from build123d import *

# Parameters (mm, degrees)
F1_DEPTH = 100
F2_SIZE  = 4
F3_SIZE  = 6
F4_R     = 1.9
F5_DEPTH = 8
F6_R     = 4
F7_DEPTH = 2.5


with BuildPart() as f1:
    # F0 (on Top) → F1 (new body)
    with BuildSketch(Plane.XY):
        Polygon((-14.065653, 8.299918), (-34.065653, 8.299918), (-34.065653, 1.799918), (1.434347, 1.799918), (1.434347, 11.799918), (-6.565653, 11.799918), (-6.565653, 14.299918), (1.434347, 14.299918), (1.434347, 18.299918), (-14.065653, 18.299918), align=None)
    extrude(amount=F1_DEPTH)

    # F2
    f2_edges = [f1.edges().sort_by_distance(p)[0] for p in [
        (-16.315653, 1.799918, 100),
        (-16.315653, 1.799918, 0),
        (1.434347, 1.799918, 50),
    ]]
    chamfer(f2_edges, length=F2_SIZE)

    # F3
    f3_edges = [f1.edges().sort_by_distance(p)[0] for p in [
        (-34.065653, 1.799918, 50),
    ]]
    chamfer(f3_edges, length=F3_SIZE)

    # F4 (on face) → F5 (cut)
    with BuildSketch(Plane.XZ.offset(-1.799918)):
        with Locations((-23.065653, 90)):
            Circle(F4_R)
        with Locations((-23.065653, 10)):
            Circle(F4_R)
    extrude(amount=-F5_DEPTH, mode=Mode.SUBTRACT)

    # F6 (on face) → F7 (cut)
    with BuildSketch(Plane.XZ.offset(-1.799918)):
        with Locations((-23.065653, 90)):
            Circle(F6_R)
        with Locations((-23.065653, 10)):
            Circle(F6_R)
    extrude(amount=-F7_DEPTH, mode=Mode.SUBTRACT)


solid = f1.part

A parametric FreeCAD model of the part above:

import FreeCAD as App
import Part
import Sketcher


def edges_at(feature, points):
    """Names of the edges that pass closest to the given points."""
    edges = feature.Shape.Edges
    near = lambda p: min(range(len(edges)), key=lambda i: edges[i].distToShape(Part.Vertex(*p))[0])
    return sorted({f"Edge{near(p) + 1}" for p in points})


def add_polygon(sketch, points):
    """Adds a closed chain of lines whose ends are joined by coincident constraints."""
    first, n = sketch.GeometryCount, len(points)
    for a, b in zip(points, points[1:] + points[:1]):
        sketch.addGeometry(Part.LineSegment(App.Vector(*a, 0), App.Vector(*b, 0)), False)
    for i in range(n):
        sketch.addConstraint(Sketcher.Constraint("Coincident", first + i, 2, first + (i + 1) % n, 1))

doc = App.newDocument("Part")
body = doc.addObject("PartDesign::Body", "Body")

sketch1 = body.newObject("Sketcher::SketchObject", "Sketch")
sketch1.AttachmentSupport = (doc.getObject("XY_Plane"), [""])
sketch1.MapMode = "FlatFace"
add_polygon(sketch1, [(-14.1, 8.3), (-34.1, 8.3), (-34.1, 1.8), (1.4, 1.8), (1.4, 11.8), (-6.6, 11.8), (-6.6, 14.3), (1.4, 14.3), (1.4, 18.3), (-14.1, 18.3)])
sketch1.addConstraint([
    Sketcher.Constraint("Horizontal", 0),
    Sketcher.Constraint("Vertical", 1),
    Sketcher.Constraint("Horizontal", 2),
    Sketcher.Constraint("Vertical", 3),
    Sketcher.Constraint("Horizontal", 4),
    Sketcher.Constraint("Vertical", 5),
    Sketcher.Constraint("Horizontal", 6),
    Sketcher.Constraint("Vertical", 7),
    Sketcher.Constraint("Horizontal", 8),
    Sketcher.Constraint("Vertical", 9),
    Sketcher.Constraint("Vertical", 3, 2, 6, 2),
    Sketcher.Constraint("Equal", 3, 9),
    Sketcher.Constraint("DistanceX", 0, 2, 0, 1, 20.0),
    Sketcher.Constraint("DistanceX", 4, 2, 4, 1, 8.0),
    Sketcher.Constraint("DistanceY", 3, 1, 3, 2, 10.0),
    Sketcher.Constraint("DistanceY", 7, 1, 7, 2, 4.0),
    Sketcher.Constraint("DistanceX", 2, 1, 2, 2, 35.5),
    Sketcher.Constraint("DistanceY", 1, 2, 1, 1, 6.5),
    Sketcher.Constraint("DistanceY", -1, 1, 7, 2, 18.299918),
    Sketcher.Constraint("DistanceX", 0, 2, -1, 1, 34.065653),
])
pad1 = body.newObject("PartDesign::Pad", "Pad")
pad1.Profile = sketch1
pad1.Length = 100
doc.recompute()

chamfer = body.newObject("PartDesign::Chamfer", "Chamfer")
chamfer.Base = (pad1, edges_at(pad1, [(-16.316, 1.8, 100), (-16.316, 1.8, 0), (1.434, 1.8, 50)]))
chamfer.Size = 4
doc.recompute()

chamfer2 = body.newObject("PartDesign::Chamfer", "Chamfer001")
chamfer2.Base = (chamfer, edges_at(chamfer, [(-34.066, 1.8, 50)]))
chamfer2.Size = 6

sketch2 = body.newObject("Sketcher::SketchObject", "Sketch001")
sketch2.AttachmentSupport = (doc.getObject("XZ_Plane"), [""])
sketch2.MapMode = "FlatFace"
sketch2.AttachmentOffset = App.Placement(App.Vector(0, 0, -1.799918), App.Rotation())
sketch2.addGeometry([
    Part.Circle(App.Vector(-23.1, 90, 0), App.Vector(0, 0, 1), 1.9),
    Part.Circle(App.Vector(-23.1, 10, 0), App.Vector(0, 0, 1), 1.9),
], False)
sketch2.addConstraint([
    Sketcher.Constraint("Equal", 0, 1),
    Sketcher.Constraint("Vertical", 0, 3, 1, 3),
    Sketcher.Constraint("Diameter", 0, 3.8),
    Sketcher.Constraint("DistanceY", -1, 1, 0, 3, 90.0),
    Sketcher.Constraint("DistanceY", -1, 1, 1, 3, 10.0),
    Sketcher.Constraint("DistanceX", 0, 3, -1, 1, 23.065653),
])
pocket1 = body.newObject("PartDesign::Pocket", "Pocket")
pocket1.Profile = sketch2
pocket1.Length = 8

sketch3 = body.newObject("Sketcher::SketchObject", "Sketch002")
sketch3.AttachmentSupport = (doc.getObject("XZ_Plane"), [""])
sketch3.MapMode = "FlatFace"
sketch3.AttachmentOffset = App.Placement(App.Vector(0, 0, -1.799918), App.Rotation())
sketch3.addGeometry([
    Part.Circle(App.Vector(-23.1, 90, 0), App.Vector(0, 0, 1), 4),
    Part.Circle(App.Vector(-23.1, 10, 0), App.Vector(0, 0, 1), 4),
], False)
sketch3.addConstraint([
    Sketcher.Constraint("Equal", 0, 1),
    Sketcher.Constraint("Vertical", 0, 3, 1, 3),
    Sketcher.Constraint("Diameter", 0, 8.0),
    Sketcher.Constraint("DistanceY", -1, 1, 0, 3, 90.0),
    Sketcher.Constraint("DistanceY", -1, 1, 1, 3, 10.0),
    Sketcher.Constraint("DistanceX", 0, 3, -1, 1, 23.065653),
])
pocket2 = body.newObject("PartDesign::Pocket", "Pocket001")
pocket2.Profile = sketch3
pocket2.Length = 2.5

doc.recompute()
